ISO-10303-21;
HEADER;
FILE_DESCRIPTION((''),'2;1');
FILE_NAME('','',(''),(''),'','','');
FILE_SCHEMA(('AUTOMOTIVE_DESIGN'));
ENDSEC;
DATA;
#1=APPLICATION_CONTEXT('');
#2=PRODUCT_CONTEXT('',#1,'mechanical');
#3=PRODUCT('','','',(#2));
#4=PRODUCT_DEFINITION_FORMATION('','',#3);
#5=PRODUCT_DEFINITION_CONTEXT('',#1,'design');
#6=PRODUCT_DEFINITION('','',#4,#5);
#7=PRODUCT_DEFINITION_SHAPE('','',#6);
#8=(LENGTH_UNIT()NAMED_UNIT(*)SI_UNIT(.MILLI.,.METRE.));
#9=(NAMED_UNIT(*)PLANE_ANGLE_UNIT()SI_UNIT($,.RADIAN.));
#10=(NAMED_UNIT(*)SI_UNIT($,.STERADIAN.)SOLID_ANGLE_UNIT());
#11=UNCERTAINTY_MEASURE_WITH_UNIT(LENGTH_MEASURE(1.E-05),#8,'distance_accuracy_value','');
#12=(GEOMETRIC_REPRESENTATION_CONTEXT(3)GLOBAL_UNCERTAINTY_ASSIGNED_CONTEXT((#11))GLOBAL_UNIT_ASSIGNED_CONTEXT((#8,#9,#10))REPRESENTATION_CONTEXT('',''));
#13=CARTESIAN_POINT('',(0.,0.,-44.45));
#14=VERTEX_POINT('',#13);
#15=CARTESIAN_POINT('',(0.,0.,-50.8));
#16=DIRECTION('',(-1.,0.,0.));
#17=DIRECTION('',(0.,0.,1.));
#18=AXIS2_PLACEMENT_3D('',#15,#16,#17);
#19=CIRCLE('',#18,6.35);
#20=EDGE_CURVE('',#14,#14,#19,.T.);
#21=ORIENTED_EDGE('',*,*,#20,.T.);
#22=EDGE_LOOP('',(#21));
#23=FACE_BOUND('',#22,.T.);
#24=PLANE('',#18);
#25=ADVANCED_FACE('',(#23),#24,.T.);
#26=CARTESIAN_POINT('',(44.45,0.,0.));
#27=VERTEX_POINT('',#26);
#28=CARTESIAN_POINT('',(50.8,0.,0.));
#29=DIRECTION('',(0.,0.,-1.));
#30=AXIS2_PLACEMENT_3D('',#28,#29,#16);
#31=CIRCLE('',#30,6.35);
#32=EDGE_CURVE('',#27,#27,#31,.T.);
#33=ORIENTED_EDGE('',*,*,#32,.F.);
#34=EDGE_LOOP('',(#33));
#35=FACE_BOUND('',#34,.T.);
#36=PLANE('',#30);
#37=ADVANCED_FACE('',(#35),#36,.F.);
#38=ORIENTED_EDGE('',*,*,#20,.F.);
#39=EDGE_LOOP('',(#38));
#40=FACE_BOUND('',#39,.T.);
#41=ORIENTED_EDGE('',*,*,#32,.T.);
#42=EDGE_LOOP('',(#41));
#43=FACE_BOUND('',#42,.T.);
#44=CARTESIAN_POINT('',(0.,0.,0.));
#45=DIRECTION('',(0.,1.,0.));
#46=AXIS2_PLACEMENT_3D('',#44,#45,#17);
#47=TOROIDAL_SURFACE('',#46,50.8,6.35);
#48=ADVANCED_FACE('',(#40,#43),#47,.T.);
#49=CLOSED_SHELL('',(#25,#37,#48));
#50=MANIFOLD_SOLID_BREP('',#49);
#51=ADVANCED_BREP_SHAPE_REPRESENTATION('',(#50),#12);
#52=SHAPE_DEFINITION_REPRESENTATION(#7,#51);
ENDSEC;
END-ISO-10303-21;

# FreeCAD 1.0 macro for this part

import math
import FreeCAD as App
import Part
import Sketcher
Q = App.Units.Quantity

doc = App.newDocument("Part")
body = doc.addObject("PartDesign::Body", "Body")

sketch1 = doc.addObject("Sketcher::SketchObject", "Sketch")
body.addObject(sketch1)
sketch1.AttachmentSupport = (doc.XY_Plane, [""])
sketch1.MapMode = "FlatFace"
sketch1.addGeometry(Part.Circle(App.Vector(50.8, 0, 0), App.Vector(0, 0, 1), 6.35), False)
sketch1.addConstraint([
    Sketcher.Constraint("PointOnObject", 0, 3, -1),
    Sketcher.Constraint("Diameter", 0, Q("0.5 in")),
    Sketcher.Constraint("DistanceX", -1, 1, 0, 3, Q("2 in")),
])

sketch2 = doc.addObject("Sketcher::SketchObject", "Sketch001")
body.addObject(sketch2)
sketch2.AttachmentSupport = (doc.XZ_Plane, [""])
sketch2.MapMode = "FlatFace"
sketch2.addGeometry(Part.ArcOfCircle(Part.Circle(App.Vector(0, 0, 0), App.Vector(0, 0, 1), 50.8), math.radians(-90), math.radians(0)), False)
sketch2.addConstraint([
    Sketcher.Constraint("Coincident", 0, 3, -1, 1),
    Sketcher.Constraint("PointOnObject", 0, 1, -2),
    Sketcher.Constraint("PointOnObject", 0, 2, -1),
    Sketcher.Constraint("Radius", 0, Q("2 in")),
])
doc.recompute()

additivepipe = doc.addObject("PartDesign::AdditivePipe", "AdditivePipe")
body.addObject(additivepipe)
additivepipe.Profile = sketch1
additivepipe.Spine = (sketch2, ["Edge1"])

doc.recompute()
